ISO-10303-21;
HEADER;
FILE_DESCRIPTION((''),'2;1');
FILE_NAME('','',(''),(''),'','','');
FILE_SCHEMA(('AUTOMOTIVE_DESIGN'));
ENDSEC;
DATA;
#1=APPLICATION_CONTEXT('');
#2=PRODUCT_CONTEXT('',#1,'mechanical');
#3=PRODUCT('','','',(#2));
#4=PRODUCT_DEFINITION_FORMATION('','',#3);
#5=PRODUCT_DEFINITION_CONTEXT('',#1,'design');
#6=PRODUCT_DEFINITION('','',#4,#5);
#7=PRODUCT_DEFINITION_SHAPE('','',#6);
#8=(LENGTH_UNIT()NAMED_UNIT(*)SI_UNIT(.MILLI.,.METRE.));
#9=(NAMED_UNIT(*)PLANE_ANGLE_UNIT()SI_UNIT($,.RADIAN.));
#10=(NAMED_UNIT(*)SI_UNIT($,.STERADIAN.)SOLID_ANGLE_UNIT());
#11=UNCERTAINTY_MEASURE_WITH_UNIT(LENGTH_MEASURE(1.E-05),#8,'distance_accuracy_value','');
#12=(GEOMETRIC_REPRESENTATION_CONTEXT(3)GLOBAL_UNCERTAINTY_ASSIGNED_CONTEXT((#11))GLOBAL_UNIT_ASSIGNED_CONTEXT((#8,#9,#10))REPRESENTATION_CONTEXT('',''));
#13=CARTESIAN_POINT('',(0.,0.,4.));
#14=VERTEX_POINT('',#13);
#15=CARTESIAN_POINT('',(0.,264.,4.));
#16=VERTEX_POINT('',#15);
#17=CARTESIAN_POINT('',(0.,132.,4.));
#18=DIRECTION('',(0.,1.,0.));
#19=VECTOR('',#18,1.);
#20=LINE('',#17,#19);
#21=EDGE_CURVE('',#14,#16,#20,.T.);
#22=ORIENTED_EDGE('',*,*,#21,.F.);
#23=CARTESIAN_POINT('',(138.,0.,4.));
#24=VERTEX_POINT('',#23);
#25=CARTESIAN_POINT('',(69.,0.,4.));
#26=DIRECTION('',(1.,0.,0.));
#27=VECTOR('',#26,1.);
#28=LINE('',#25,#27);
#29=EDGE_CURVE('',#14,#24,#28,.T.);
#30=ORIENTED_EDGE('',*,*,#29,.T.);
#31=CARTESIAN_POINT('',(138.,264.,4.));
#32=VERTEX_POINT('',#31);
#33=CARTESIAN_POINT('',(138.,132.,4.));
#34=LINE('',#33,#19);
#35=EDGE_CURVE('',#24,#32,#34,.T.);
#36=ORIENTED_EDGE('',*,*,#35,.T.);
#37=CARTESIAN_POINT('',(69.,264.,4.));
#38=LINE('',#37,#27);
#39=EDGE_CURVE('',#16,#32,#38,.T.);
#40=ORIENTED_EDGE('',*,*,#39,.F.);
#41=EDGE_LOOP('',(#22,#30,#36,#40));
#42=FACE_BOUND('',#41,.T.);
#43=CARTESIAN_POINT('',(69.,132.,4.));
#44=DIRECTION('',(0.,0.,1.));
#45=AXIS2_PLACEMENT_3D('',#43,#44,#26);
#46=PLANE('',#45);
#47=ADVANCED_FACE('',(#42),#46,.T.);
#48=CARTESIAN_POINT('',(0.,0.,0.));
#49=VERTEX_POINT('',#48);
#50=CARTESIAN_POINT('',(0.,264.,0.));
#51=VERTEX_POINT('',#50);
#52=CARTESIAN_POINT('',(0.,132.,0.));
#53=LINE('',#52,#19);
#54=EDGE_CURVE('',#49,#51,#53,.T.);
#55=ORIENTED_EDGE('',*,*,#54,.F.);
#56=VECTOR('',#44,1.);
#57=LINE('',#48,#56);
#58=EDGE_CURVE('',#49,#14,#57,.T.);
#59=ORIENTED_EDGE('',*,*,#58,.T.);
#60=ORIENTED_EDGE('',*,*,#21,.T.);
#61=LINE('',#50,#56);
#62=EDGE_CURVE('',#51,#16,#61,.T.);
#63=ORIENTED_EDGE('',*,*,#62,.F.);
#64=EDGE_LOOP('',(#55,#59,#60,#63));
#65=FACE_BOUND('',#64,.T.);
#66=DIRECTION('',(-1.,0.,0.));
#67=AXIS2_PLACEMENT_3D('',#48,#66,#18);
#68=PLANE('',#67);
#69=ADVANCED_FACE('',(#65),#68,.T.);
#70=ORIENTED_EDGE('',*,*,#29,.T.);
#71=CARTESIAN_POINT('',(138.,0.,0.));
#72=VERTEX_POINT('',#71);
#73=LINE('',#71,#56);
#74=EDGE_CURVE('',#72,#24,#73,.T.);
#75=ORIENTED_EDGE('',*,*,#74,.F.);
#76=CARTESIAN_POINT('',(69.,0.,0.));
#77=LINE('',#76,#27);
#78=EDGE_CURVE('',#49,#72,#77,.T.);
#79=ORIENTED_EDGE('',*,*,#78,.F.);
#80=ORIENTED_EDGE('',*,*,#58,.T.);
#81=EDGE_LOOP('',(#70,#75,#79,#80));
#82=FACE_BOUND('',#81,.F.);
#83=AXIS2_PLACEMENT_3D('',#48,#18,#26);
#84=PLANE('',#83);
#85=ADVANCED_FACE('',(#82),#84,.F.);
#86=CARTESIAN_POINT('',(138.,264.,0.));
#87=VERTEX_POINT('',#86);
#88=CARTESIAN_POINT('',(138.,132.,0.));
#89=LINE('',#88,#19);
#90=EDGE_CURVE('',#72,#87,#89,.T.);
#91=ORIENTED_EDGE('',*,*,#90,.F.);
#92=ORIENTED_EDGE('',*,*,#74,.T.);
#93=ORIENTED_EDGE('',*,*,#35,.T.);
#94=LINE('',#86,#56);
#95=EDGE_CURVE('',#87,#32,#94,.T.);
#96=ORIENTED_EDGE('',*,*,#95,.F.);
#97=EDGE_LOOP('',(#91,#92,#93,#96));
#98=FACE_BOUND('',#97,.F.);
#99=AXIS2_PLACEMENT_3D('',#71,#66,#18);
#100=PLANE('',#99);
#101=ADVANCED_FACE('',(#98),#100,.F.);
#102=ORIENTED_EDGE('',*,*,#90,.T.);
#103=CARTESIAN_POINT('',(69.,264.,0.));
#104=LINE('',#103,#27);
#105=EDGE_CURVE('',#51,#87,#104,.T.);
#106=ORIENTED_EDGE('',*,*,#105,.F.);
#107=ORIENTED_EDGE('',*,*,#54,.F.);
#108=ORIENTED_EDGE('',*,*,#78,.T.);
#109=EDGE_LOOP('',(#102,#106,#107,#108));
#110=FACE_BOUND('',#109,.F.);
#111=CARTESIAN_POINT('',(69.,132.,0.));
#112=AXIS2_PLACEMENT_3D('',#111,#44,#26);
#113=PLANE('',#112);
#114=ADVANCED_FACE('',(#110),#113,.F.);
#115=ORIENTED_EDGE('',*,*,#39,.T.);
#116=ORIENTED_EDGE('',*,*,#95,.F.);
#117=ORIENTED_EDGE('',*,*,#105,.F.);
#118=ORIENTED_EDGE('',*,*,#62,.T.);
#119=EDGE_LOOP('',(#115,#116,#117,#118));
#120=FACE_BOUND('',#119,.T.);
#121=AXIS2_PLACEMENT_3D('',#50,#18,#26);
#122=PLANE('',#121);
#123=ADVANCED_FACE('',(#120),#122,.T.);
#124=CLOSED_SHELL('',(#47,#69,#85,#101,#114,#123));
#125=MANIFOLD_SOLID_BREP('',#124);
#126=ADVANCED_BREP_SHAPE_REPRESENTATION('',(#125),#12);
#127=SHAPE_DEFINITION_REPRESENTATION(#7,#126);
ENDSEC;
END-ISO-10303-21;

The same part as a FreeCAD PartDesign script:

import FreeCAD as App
import Part
import Sketcher
from FreeCAD import Vector
Q = App.Units.Quantity

doc = App.newDocument("Part")
body = doc.addObject("PartDesign::Body", "Body")

# Sketch on XY plane
sketch1 = body.newObject("Sketcher::SketchObject", "Sketch")
sketch1.AttachmentSupport = (doc.getObject("XY_Plane"), [""])
sketch1.MapMode = "FlatFace"
sketch1.addGeometry([
    Part.LineSegment(Vector(0, 264, 0), Vector(0, 0, 0)),
    Part.LineSegment(Vector(0, 0, 0), Vector(138, 0, 0)),
    Part.LineSegment(Vector(138, 0, 0), Vector(138, 264, 0)),
    Part.LineSegment(Vector(138, 264, 0), Vector(0, 264, 0)),
], False)
sketch1.addConstraint([
    Sketcher.Constraint("Coincident", 0, 2, 1, 1),
    Sketcher.Constraint("Coincident", 1, 2, 2, 1),
    Sketcher.Constraint("Coincident", 2, 2, 3, 1),
    Sketcher.Constraint("Coincident", 3, 2, 0, 1),
    Sketcher.Constraint("Vertical", 0),
    Sketcher.Constraint("Horizontal", 1),
    Sketcher.Constraint("Vertical", 2),
    Sketcher.Constraint("Horizontal", 3),
    Sketcher.Constraint("Coincident", 0, 2, -1, 1),
    Sketcher.Constraint("DistanceX", 1, 1, 1, 2, Q("138 mm")),
    Sketcher.Constraint("DistanceY", 0, 2, 0, 1, Q("264 mm")),
])
pad1 = body.newObject("PartDesign::Pad", "Pad")
pad1.Profile = sketch1
pad1.Length = 4

doc.recompute()
